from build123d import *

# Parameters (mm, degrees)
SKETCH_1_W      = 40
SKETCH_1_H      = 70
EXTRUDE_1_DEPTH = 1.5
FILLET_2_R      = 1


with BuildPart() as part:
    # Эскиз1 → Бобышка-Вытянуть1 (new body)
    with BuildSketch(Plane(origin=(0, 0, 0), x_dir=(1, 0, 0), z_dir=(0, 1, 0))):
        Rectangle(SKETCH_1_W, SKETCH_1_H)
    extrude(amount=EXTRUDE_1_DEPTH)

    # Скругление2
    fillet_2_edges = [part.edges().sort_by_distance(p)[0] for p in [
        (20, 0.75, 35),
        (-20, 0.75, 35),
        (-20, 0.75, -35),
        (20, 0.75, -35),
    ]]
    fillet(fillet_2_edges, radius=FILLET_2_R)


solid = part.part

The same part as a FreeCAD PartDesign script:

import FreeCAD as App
import Part
import Sketcher


def edges_at(feature, points):
    """Names of the edges that pass closest to the given points."""
    edges = feature.Shape.Edges
    near = lambda p: min(range(len(edges)), key=lambda i: edges[i].distToShape(Part.Vertex(*p))[0])
    return sorted({f"Edge{near(p) + 1}" for p in points})


def add_polygon(sketch, points):
    """Adds a closed chain of lines whose ends are joined by coincident constraints."""
    first, n = sketch.GeometryCount, len(points)
    for a, b in zip(points, points[1:] + points[:1]):
        sketch.addGeometry(Part.LineSegment(App.Vector(*a, 0), App.Vector(*b, 0)), False)
    for i in range(n):
        sketch.addConstraint(Sketcher.Constraint("Coincident", first + i, 2, first + (i + 1) % n, 1))

doc = App.newDocument("Part")
body = doc.addObject("PartDesign::Body", "Body")

# Sketch on XZ plane
sketch1 = body.newObject("Sketcher::SketchObject", "Sketch")
sketch1.AttachmentSupport = (doc.getObject("XZ_Plane"), [""])
sketch1.MapMode = "FlatFace"
add_polygon(sketch1, [(-20, -35), (-20, 35), (20, 35), (20, -35)])  # lines 0-3
sketch1.addConstraint(Sketcher.Constraint("Vertical", 0))
sketch1.addConstraint(Sketcher.Constraint("Horizontal", 1))
sketch1.addConstraint(Sketcher.Constraint("Vertical", 2))
sketch1.addConstraint(Sketcher.Constraint("Horizontal", 3))
sketch1.addConstraint(Sketcher.Constraint("Symmetric", 0, 2, 2, 2, -1, 1))
sketch1.addConstraint(Sketcher.Constraint("DistanceX", 1, 1, 1, 2, 40.0))
sketch1.addConstraint(Sketcher.Constraint("DistanceY", 0, 1, 0, 2, 70.0))
pad1 = body.newObject("PartDesign::Pad", "Pad")
pad1.Profile = sketch1
pad1.Length = 1.5
pad1.Reversed = True
doc.recompute()

fillet = body.newObject("PartDesign::Fillet", "Fillet")
fillet.Base = (pad1, edges_at(pad1, [
    (20, 0.75, 35),
    (-20, 0.75, 35),
    (-20, 0.75, -35),
    (20, 0.75, -35),
]))
fillet.Radius = 1

doc.recompute()
